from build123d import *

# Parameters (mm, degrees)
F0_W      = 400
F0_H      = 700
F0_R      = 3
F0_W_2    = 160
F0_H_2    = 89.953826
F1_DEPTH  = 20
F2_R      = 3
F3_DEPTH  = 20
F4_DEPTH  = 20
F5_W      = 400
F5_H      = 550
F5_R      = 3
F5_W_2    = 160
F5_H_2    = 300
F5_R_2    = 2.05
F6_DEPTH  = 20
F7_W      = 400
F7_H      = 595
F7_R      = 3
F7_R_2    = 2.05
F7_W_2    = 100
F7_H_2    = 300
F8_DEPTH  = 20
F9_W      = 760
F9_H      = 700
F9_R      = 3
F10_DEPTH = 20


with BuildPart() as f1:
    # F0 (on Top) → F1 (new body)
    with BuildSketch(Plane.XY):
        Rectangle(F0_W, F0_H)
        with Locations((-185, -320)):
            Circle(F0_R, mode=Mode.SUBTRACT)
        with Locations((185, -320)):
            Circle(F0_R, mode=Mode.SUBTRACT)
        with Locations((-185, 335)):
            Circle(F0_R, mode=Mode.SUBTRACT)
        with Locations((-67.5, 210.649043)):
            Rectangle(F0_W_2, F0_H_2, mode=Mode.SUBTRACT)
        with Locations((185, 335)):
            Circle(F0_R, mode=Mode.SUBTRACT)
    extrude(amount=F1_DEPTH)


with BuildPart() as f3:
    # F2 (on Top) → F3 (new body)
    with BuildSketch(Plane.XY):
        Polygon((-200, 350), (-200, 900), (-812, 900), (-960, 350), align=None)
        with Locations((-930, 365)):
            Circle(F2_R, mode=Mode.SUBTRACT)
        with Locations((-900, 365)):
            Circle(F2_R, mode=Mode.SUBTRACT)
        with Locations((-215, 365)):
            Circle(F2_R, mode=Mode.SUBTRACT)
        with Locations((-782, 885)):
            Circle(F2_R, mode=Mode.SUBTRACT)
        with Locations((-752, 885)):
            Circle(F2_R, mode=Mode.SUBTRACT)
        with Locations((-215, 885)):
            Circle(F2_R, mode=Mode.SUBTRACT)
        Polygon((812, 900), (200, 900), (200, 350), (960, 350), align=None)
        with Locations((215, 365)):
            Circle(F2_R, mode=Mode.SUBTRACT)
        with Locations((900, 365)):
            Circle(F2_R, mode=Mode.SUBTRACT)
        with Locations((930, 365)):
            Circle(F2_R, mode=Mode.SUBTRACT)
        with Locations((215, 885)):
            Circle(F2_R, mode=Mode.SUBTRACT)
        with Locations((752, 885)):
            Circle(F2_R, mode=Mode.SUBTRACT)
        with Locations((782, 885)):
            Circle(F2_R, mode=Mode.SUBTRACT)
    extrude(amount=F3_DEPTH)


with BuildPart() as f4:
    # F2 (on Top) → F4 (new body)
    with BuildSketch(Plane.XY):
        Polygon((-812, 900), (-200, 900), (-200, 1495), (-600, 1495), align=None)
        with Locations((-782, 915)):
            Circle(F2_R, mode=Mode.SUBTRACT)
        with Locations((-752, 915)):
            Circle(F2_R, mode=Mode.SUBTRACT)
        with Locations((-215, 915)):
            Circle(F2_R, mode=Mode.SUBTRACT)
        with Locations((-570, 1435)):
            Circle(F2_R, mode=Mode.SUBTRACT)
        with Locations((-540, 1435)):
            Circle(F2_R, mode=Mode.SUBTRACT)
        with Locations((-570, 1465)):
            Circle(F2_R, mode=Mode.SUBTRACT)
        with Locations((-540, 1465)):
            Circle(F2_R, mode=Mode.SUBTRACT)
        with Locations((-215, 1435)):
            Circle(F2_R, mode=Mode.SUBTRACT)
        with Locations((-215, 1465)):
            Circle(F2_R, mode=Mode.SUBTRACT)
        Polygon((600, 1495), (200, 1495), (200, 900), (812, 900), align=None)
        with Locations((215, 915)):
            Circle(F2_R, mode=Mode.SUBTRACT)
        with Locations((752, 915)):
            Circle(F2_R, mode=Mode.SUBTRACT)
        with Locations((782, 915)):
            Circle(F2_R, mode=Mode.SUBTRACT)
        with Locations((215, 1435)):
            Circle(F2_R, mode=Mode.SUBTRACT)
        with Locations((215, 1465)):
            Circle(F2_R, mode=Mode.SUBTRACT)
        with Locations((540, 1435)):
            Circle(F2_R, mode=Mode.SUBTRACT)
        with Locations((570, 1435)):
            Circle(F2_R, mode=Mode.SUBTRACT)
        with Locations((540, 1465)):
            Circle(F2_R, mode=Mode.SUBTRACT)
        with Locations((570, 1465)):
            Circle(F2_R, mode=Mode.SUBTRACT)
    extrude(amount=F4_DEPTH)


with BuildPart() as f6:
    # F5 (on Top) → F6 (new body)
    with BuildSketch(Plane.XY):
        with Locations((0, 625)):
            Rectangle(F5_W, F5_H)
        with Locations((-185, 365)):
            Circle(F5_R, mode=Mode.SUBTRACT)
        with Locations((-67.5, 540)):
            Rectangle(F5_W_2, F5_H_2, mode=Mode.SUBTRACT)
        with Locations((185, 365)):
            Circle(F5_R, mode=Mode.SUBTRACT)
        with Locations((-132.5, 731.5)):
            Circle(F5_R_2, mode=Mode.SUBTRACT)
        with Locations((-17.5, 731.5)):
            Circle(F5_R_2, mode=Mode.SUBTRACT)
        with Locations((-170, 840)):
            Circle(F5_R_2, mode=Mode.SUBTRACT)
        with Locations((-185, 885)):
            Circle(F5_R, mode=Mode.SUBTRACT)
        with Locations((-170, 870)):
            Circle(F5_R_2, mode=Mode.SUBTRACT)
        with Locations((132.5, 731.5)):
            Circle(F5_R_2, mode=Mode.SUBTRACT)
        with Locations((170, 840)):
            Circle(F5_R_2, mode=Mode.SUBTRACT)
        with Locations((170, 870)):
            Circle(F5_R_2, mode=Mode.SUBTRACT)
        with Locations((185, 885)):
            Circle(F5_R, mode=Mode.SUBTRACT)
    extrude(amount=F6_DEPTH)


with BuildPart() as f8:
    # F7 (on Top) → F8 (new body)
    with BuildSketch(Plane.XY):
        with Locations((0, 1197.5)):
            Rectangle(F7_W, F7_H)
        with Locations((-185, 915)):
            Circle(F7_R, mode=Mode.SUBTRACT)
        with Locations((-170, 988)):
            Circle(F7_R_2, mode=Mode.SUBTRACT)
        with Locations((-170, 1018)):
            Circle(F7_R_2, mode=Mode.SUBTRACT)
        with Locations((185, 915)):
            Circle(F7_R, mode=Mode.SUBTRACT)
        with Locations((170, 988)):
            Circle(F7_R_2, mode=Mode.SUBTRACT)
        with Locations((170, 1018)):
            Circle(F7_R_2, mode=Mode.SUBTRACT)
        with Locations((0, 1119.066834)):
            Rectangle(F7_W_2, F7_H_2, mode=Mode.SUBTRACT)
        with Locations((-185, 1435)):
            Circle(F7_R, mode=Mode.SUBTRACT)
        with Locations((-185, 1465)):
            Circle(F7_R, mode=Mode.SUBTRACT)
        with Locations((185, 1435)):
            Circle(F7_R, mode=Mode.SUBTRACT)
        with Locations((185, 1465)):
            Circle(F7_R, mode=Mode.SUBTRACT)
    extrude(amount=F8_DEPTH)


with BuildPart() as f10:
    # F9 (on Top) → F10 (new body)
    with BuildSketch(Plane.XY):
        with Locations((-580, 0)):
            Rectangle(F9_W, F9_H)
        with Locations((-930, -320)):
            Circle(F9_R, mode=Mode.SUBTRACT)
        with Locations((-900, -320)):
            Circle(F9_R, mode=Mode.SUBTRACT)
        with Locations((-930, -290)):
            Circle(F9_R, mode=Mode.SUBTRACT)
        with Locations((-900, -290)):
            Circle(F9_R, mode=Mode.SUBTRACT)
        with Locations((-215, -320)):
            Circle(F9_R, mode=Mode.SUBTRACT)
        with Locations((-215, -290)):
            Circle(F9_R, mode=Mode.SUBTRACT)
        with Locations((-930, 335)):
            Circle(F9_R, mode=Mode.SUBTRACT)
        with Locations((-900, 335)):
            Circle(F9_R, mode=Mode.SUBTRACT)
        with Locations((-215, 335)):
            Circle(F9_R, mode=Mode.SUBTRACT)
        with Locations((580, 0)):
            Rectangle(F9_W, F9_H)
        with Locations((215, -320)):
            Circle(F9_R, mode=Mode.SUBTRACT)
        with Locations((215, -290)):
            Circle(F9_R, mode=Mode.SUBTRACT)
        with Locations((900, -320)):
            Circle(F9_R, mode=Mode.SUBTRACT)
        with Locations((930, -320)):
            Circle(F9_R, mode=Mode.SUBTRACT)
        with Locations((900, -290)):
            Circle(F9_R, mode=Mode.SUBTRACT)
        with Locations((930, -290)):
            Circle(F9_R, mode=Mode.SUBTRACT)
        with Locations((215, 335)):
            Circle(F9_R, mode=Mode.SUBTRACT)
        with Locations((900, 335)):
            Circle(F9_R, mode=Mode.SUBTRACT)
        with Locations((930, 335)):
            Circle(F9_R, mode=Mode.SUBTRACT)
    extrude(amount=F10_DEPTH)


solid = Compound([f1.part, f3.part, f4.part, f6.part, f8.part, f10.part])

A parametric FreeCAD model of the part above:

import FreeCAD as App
import Part
import Sketcher

V = App.Vector
Q = App.Units.Quantity

doc = App.newDocument("Part")
body = doc.addObject("PartDesign::Body", "Body")

sketch1 = body.newObject("Sketcher::SketchObject", "Sketch")
sketch1.AttachmentSupport = (doc.getObject("XY_Plane"), [""])
sketch1.MapMode = "FlatFace"
sketch1.addGeometry(Part.LineSegment(V(-200, 350, 0), V(-200, -350, 0)), False)
sketch1.addGeometry(Part.LineSegment(V(-200, -350, 0), V(200, -350, 0)), False)
sketch1.addGeometry(Part.LineSegment(V(200, -350, 0), V(200, 350, 0)), False)
sketch1.addGeometry(Part.LineSegment(V(200, 350, 0), V(-200, 350, 0)), False)
sketch1.addGeometry(Part.Circle(V(-185, -320, 0), V(0, 0, 1), 3), False)
sketch1.addGeometry(Part.Circle(V(185, -320, 0), V(0, 0, 1), 3), False)
sketch1.addGeometry(Part.Circle(V(-185, 335, 0), V(0, 0, 1), 3), False)
sketch1.addGeometry(Part.LineSegment(V(12.5, 165.7, 0), V(-147.5, 165.7, 0)), False)
sketch1.addGeometry(Part.LineSegment(V(-147.5, 165.7, 0), V(-147.5, 255.6, 0)), False)
sketch1.addGeometry(Part.LineSegment(V(-147.5, 255.6, 0), V(12.5, 255.6, 0)), False)
sketch1.addGeometry(Part.LineSegment(V(12.5, 255.6, 0), V(12.5, 165.7, 0)), False)
sketch1.addGeometry(Part.Circle(V(185, 335, 0), V(0, 0, 1), 3), False)
sketch1.addConstraint(Sketcher.Constraint("Coincident", 0, 2, 1, 1))
sketch1.addConstraint(Sketcher.Constraint("Coincident", 1, 2, 2, 1))
sketch1.addConstraint(Sketcher.Constraint("Coincident", 2, 2, 3, 1))
sketch1.addConstraint(Sketcher.Constraint("Coincident", 3, 2, 0, 1))
sketch1.addConstraint(Sketcher.Constraint("Coincident", 7, 2, 8, 1))
sketch1.addConstraint(Sketcher.Constraint("Coincident", 8, 2, 9, 1))
sketch1.addConstraint(Sketcher.Constraint("Coincident", 9, 2, 10, 1))
sketch1.addConstraint(Sketcher.Constraint("Coincident", 10, 2, 7, 1))
sketch1.addConstraint(Sketcher.Constraint("Vertical", 0))
sketch1.addConstraint(Sketcher.Constraint("Horizontal", 1))
sketch1.addConstraint(Sketcher.Constraint("Vertical", 2))
sketch1.addConstraint(Sketcher.Constraint("Horizontal", 3))
sketch1.addConstraint(Sketcher.Constraint("Horizontal", 7))
sketch1.addConstraint(Sketcher.Constraint("Vertical", 8))
sketch1.addConstraint(Sketcher.Constraint("Horizontal", 9))
sketch1.addConstraint(Sketcher.Constraint("Vertical", 10))
sketch1.addConstraint(Sketcher.Constraint("Equal", 4, 5))
sketch1.addConstraint(Sketcher.Constraint("Equal", 5, 6))
sketch1.addConstraint(Sketcher.Constraint("Equal", 6, 11))
sketch1.addConstraint(Sketcher.Constraint("Symmetric", 0, 2, 2, 2, -1, 1))
sketch1.addConstraint(Sketcher.Constraint("Symmetric", 4, 3, 5, 3, -2))
sketch1.addConstraint(Sketcher.Constraint("Symmetric", 6, 3, 11, 3, -2))
sketch1.addConstraint(Sketcher.Constraint("Vertical", 4, 3, 6, 3))
sketch1.addConstraint(Sketcher.Constraint("Diameter", 4, Q("6 mm")))
sketch1.addConstraint(Sketcher.Constraint("DistanceX", 1, 1, 1, 2, Q("400 mm")))
sketch1.addConstraint(Sketcher.Constraint("DistanceX", 7, 2, 7, 1, Q("160 mm")))
sketch1.addConstraint(Sketcher.Constraint("DistanceY", 0, 2, 0, 1, Q("700 mm")))
sketch1.addConstraint(Sketcher.Constraint("DistanceX", 4, 3, -1, 1, Q("185 mm")))
sketch1.addConstraint(Sketcher.Constraint("DistanceY", 4, 3, -1, 1, Q("320 mm")))
sketch1.addConstraint(Sketcher.Constraint("DistanceY", -1, 1, 6, 3, Q("335 mm")))
sketch1.addConstraint(Sketcher.Constraint("DistanceX", 7, 2, -1, 1, Q("147.5 mm")))
sketch1.addConstraint(Sketcher.Constraint("DistanceY", 8, 1, 8, 2, Q("89.953826 mm")))
sketch1.addConstraint(Sketcher.Constraint("DistanceY", -1, 1, 7, 2, Q("165.67213 mm")))
pad1 = body.newObject("PartDesign::Pad", "Pad")
pad1.Profile = sketch1
pad1.Length = 20
body2 = doc.addObject("PartDesign::Body", "Body001")
body2.AllowCompound = True

sketch2 = body2.newObject("Sketcher::SketchObject", "Sketch001")
sketch2.AttachmentSupport = (doc.getObject("XY_Plane001"), [""])
sketch2.MapMode = "FlatFace"
sketch2.addGeometry(Part.LineSegment(V(-200, 350, 0), V(-200, 900, 0)), False)
sketch2.addGeometry(Part.LineSegment(V(-200, 900, 0), V(-812, 900, 0)), False)
sketch2.addGeometry(Part.LineSegment(V(-812, 900, 0), V(-960, 350, 0)), False)
sketch2.addGeometry(Part.LineSegment(V(-960, 350, 0), V(-200, 350, 0)), False)
sketch2.addGeometry(Part.Circle(V(-930, 365, 0), V(0, 0, 1), 3), False)
sketch2.addGeometry(Part.Circle(V(-900, 365, 0), V(0, 0, 1), 3), False)
sketch2.addGeometry(Part.Circle(V(-215, 365, 0), V(0, 0, 1), 3), False)
sketch2.addGeometry(Part.Circle(V(-782, 885, 0), V(0, 0, 1), 3), False)
sketch2.addGeometry(Part.Circle(V(-752, 885, 0), V(0, 0, 1), 3), False)
sketch2.addGeometry(Part.Circle(V(-215, 885, 0), V(0, 0, 1), 3), False)
sketch2.addGeometry(Part.LineSegment(V(812, 900, 0), V(200, 900, 0)), False)
sketch2.addGeometry(Part.LineSegment(V(200, 900, 0), V(200, 350, 0)), False)
sketch2.addGeometry(Part.LineSegment(V(200, 350, 0), V(960, 350, 0)), False)
sketch2.addGeometry(Part.LineSegment(V(960, 350, 0), V(812, 900, 0)), False)
sketch2.addGeometry(Part.Circle(V(215, 365, 0), V(0, 0, 1), 3), False)
sketch2.addGeometry(Part.Circle(V(900, 365, 0), V(0, 0, 1), 3), False)
sketch2.addGeometry(Part.Circle(V(930, 365, 0), V(0, 0, 1), 3), False)
sketch2.addGeometry(Part.Circle(V(215, 885, 0), V(0, 0, 1), 3), False)
sketch2.addGeometry(Part.Circle(V(752, 885, 0), V(0, 0, 1), 3), False)
sketch2.addGeometry(Part.Circle(V(782, 885, 0), V(0, 0, 1), 3), False)
sketch2.addConstraint(Sketcher.Constraint("Coincident", 0, 2, 1, 1))
sketch2.addConstraint(Sketcher.Constraint("Coincident", 1, 2, 2, 1))
sketch2.addConstraint(Sketcher.Constraint("Coincident", 2, 2, 3, 1))
sketch2.addConstraint(Sketcher.Constraint("Coincident", 3, 2, 0, 1))
sketch2.addConstraint(Sketcher.Constraint("Coincident", 10, 2, 11, 1))
sketch2.addConstraint(Sketcher.Constraint("Coincident", 11, 2, 12, 1))
sketch2.addConstraint(Sketcher.Constraint("Coincident", 12, 2, 13, 1))
sketch2.addConstraint(Sketcher.Constraint("Coincident", 13, 2, 10, 1))
sketch2.addConstraint(Sketcher.Constraint("Vertical", 0))
sketch2.addConstraint(Sketcher.Constraint("Horizontal", 1))
sketch2.addConstraint(Sketcher.Constraint("Horizontal", 3))
sketch2.addConstraint(Sketcher.Constraint("Horizontal", 10))
sketch2.addConstraint(Sketcher.Constraint("Vertical", 11))
sketch2.addConstraint(Sketcher.Constraint("Horizontal", 12))
sketch2.addConstraint(Sketcher.Constraint("Equal", 4, 5))
sketch2.addConstraint(Sketcher.Constraint("Equal", 5, 6))
sketch2.addConstraint(Sketcher.Constraint("Equal", 6, 7))
sketch2.addConstraint(Sketcher.Constraint("Equal", 7, 8))
sketch2.addConstraint(Sketcher.Constraint("Equal", 8, 9))
sketch2.addConstraint(Sketcher.Constraint("Equal", 9, 14))
sketch2.addConstraint(Sketcher.Constraint("Equal", 14, 15))
sketch2.addConstraint(Sketcher.Constraint("Equal", 15, 16))
sketch2.addConstraint(Sketcher.Constraint("Equal", 16, 17))
sketch2.addConstraint(Sketcher.Constraint("Equal", 17, 18))
sketch2.addConstraint(Sketcher.Constraint("Equal", 18, 19))
sketch2.addConstraint(Sketcher.Constraint("Symmetric", 6, 3, 14, 3, -2))
sketch2.addConstraint(Sketcher.Constraint("Symmetric", 5, 3, 15, 3, -2))
sketch2.addConstraint(Sketcher.Constraint("Symmetric", 4, 3, 16, 3, -2))
sketch2.addConstraint(Sketcher.Constraint("Symmetric", 9, 3, 17, 3, -2))
sketch2.addConstraint(Sketcher.Constraint("Symmetric", 8, 3, 18, 3, -2))
sketch2.addConstraint(Sketcher.Constraint("Symmetric", 7, 3, 19, 3, -2))
sketch2.addConstraint(Sketcher.Constraint("Symmetric", 0, 2, 10, 2, -2))
sketch2.addConstraint(Sketcher.Constraint("Symmetric", 2, 2, 12, 2, -2))
sketch2.addConstraint(Sketcher.Constraint("Horizontal", 4, 3, 5, 3))
sketch2.addConstraint(Sketcher.Constraint("Horizontal", 5, 3, 6, 3))
sketch2.addConstraint(Sketcher.Constraint("Horizontal", 7, 3, 8, 3))
sketch2.addConstraint(Sketcher.Constraint("Horizontal", 8, 3, 9, 3))
sketch2.addConstraint(Sketcher.Constraint("Vertical", 6, 3, 9, 3))
sketch2.addConstraint(Sketcher.Constraint("Equal", 1, 10))
sketch2.addConstraint(Sketcher.Constraint("Diameter", 4, Q("6 mm")))
sketch2.addConstraint(Sketcher.Constraint("DistanceX", 1, 2, 1, 1, Q("612 mm")))
sketch2.addConstraint(Sketcher.Constraint("DistanceX", 3, 1, 3, 2, Q("760 mm")))
sketch2.addConstraint(Sketcher.Constraint("DistanceY", 0, 1, 0, 2, Q("550 mm")))
sketch2.addConstraint(Sketcher.Constraint("DistanceX", 4, 3, -1, 1, Q("930 mm")))
sketch2.addConstraint(Sketcher.Constraint("DistanceY", -1, 1, 4, 3, Q("365 mm")))
sketch2.addConstraint(Sketcher.Constraint("DistanceX", 5, 3, -1, 1, Q("900 mm")))
sketch2.addConstraint(Sketcher.Constraint("DistanceX", 6, 3, -1, 1, Q("215 mm")))
sketch2.addConstraint(Sketcher.Constraint("DistanceX", 7, 3, -1, 1, Q("782 mm")))
sketch2.addConstraint(Sketcher.Constraint("DistanceY", -1, 1, 7, 3, Q("885 mm")))
sketch2.addConstraint(Sketcher.Constraint("DistanceX", 8, 3, -1, 1, Q("752 mm")))
sketch2.addConstraint(Sketcher.Constraint("DistanceX", 0, 2, -1, 1, Q("200 mm")))
sketch2.addConstraint(Sketcher.Constraint("DistanceY", -1, 1, 0, 2, Q("900 mm")))
pad2 = body2.newObject("PartDesign::Pad", "Pad001")
pad2.Profile = sketch2
pad2.Length = 20
body3 = doc.addObject("PartDesign::Body", "Body002")
body3.AllowCompound = True

sketch3 = body3.newObject("Sketcher::SketchObject", "Sketch002")
sketch3.AttachmentSupport = (doc.getObject("XY_Plane002"), [""])
sketch3.MapMode = "FlatFace"
sketch3.addGeometry(Part.LineSegment(V(-812, 900, 0), V(-200, 900, 0)), False)
sketch3.addGeometry(Part.LineSegment(V(-200, 900, 0), V(-200, 1495, 0)), False)
sketch3.addGeometry(Part.LineSegment(V(-200, 1495, 0), V(-600, 1495, 0)), False)
sketch3.addGeometry(Part.LineSegment(V(-600, 1495, 0), V(-812, 900, 0)), False)
sketch3.addGeometry(Part.Circle(V(-782, 915, 0), V(0, 0, 1), 3), False)
sketch3.addGeometry(Part.Circle(V(-752, 915, 0), V(0, 0, 1), 3), False)
sketch3.addGeometry(Part.Circle(V(-215, 915, 0), V(0, 0, 1), 3), False)
sketch3.addGeometry(Part.Circle(V(-570, 1435, 0), V(0, 0, 1), 3), False)
sketch3.addGeometry(Part.Circle(V(-540, 1435, 0), V(0, 0, 1), 3), False)
sketch3.addGeometry(Part.Circle(V(-570, 1465, 0), V(0, 0, 1), 3), False)
sketch3.addGeometry(Part.Circle(V(-540, 1465, 0), V(0, 0, 1), 3), False)
sketch3.addGeometry(Part.Circle(V(-215, 1435, 0), V(0, 0, 1), 3), False)
sketch3.addGeometry(Part.Circle(V(-215, 1465, 0), V(0, 0, 1), 3), False)
sketch3.addGeometry(Part.LineSegment(V(600, 1495, 0), V(200, 1495, 0)), False)
sketch3.addGeometry(Part.LineSegment(V(200, 1495, 0), V(200, 900, 0)), False)
sketch3.addGeometry(Part.LineSegment(V(200, 900, 0), V(812, 900, 0)), False)
sketch3.addGeometry(Part.LineSegment(V(812, 900, 0), V(600, 1495, 0)), False)
sketch3.addGeometry(Part.Circle(V(215, 915, 0), V(0, 0, 1), 3), False)
sketch3.addGeometry(Part.Circle(V(752, 915, 0), V(0, 0, 1), 3), False)
sketch3.addGeometry(Part.Circle(V(782, 915, 0), V(0, 0, 1), 3), False)
sketch3.addGeometry(Part.Circle(V(215, 1435, 0), V(0, 0, 1), 3), False)
sketch3.addGeometry(Part.Circle(V(215, 1465, 0), V(0, 0, 1), 3), False)
sketch3.addGeometry(Part.Circle(V(540, 1435, 0), V(0, 0, 1), 3), False)
sketch3.addGeometry(Part.Circle(V(570, 1435, 0), V(0, 0, 1), 3), False)
sketch3.addGeometry(Part.Circle(V(540, 1465, 0), V(0, 0, 1), 3), False)
sketch3.addGeometry(Part.Circle(V(570, 1465, 0), V(0, 0, 1), 3), False)
sketch3.addConstraint(Sketcher.Constraint("Coincident", 0, 2, 1, 1))
sketch3.addConstraint(Sketcher.Constraint("Coincident", 1, 2, 2, 1))
sketch3.addConstraint(Sketcher.Constraint("Coincident", 2, 2, 3, 1))
sketch3.addConstraint(Sketcher.Constraint("Coincident", 3, 2, 0, 1))
sketch3.addConstraint(Sketcher.Constraint("Coincident", 13, 2, 14, 1))
sketch3.addConstraint(Sketcher.Constraint("Coincident", 14, 2, 15, 1))
sketch3.addConstraint(Sketcher.Constraint("Coincident", 15, 2, 16, 1))
sketch3.addConstraint(Sketcher.Constraint("Coincident", 16, 2, 13, 1))
sketch3.addConstraint(Sketcher.Constraint("Horizontal", 0))
sketch3.addConstraint(Sketcher.Constraint("Vertical", 1))
sketch3.addConstraint(Sketcher.Constraint("Horizontal", 2))
sketch3.addConstraint(Sketcher.Constraint("Horizontal", 13))
sketch3.addConstraint(Sketcher.Constraint("Vertical", 14))
sketch3.addConstraint(Sketcher.Constraint("Horizontal", 15))
sketch3.addConstraint(Sketcher.Constraint("Equal", 4, 5))
sketch3.addConstraint(Sketcher.Constraint("Equal", 5, 6))
sketch3.addConstraint(Sketcher.Constraint("Equal", 6, 7))
sketch3.addConstraint(Sketcher.Constraint("Equal", 7, 8))
sketch3.addConstraint(Sketcher.Constraint("Equal", 8, 9))
sketch3.addConstraint(Sketcher.Constraint("Equal", 9, 10))
sketch3.addConstraint(Sketcher.Constraint("Equal", 10, 11))
sketch3.addConstraint(Sketcher.Constraint("Equal", 11, 12))
sketch3.addConstraint(Sketcher.Constraint("Equal", 12, 17))
sketch3.addConstraint(Sketcher.Constraint("Equal", 17, 18))
sketch3.addConstraint(Sketcher.Constraint("Equal", 18, 19))
sketch3.addConstraint(Sketcher.Constraint("Equal", 19, 20))
sketch3.addConstraint(Sketcher.Constraint("Equal", 20, 21))
sketch3.addConstraint(Sketcher.Constraint("Equal", 21, 22))
sketch3.addConstraint(Sketcher.Constraint("Equal", 22, 23))
sketch3.addConstraint(Sketcher.Constraint("Equal", 23, 24))
sketch3.addConstraint(Sketcher.Constraint("Equal", 24, 25))
sketch3.addConstraint(Sketcher.Constraint("Symmetric", 6, 3, 17, 3, -2))
sketch3.addConstraint(Sketcher.Constraint("Symmetric", 5, 3, 18, 3, -2))
sketch3.addConstraint(Sketcher.Constraint("Symmetric", 4, 3, 19, 3, -2))
sketch3.addConstraint(Sketcher.Constraint("Symmetric", 11, 3, 20, 3, -2))
sketch3.addConstraint(Sketcher.Constraint("Symmetric", 12, 3, 21, 3, -2))
sketch3.addConstraint(Sketcher.Constraint("Symmetric", 8, 3, 22, 3, -2))
sketch3.addConstraint(Sketcher.Constraint("Symmetric", 7, 3, 23, 3, -2))
sketch3.addConstraint(Sketcher.Constraint("Symmetric", 10, 3, 24, 3, -2))
sketch3.addConstraint(Sketcher.Constraint("Symmetric", 9, 3, 25, 3, -2))
sketch3.addConstraint(Sketcher.Constraint("Symmetric", 1, 2, 13, 2, -2))
sketch3.addConstraint(Sketcher.Constraint("Symmetric", 3, 2, 15, 2, -2))
sketch3.addConstraint(Sketcher.Constraint("Horizontal", 4, 3, 5, 3))
sketch3.addConstraint(Sketcher.Constraint("Horizontal", 5, 3, 6, 3))
sketch3.addConstraint(Sketcher.Constraint("Horizontal", 7, 3, 8, 3))
sketch3.addConstraint(Sketcher.Constraint("Horizontal", 9, 3, 10, 3))
sketch3.addConstraint(Sketcher.Constraint("Horizontal", 8, 3, 11, 3))
sketch3.addConstraint(Sketcher.Constraint("Horizontal", 10, 3, 12, 3))
sketch3.addConstraint(Sketcher.Constraint("Vertical", 7, 3, 9, 3))
sketch3.addConstraint(Sketcher.Constraint("Vertical", 8, 3, 10, 3))
sketch3.addConstraint(Sketcher.Constraint("Vertical", 6, 3, 11, 3))
sketch3.addConstraint(Sketcher.Constraint("Vertical", 11, 3, 12, 3))
sketch3.addConstraint(Sketcher.Constraint("Equal", 2, 13))
sketch3.addConstraint(Sketcher.Constraint("Diameter", 4, Q("6 mm")))
sketch3.addConstraint(Sketcher.Constraint("DistanceX", 0, 1, 0, 2, Q("612 mm")))
sketch3.addConstraint(Sketcher.Constraint("DistanceX", 2, 2, 2, 1, Q("400 mm")))
sketch3.addConstraint(Sketcher.Constraint("DistanceY", 1, 1, 1, 2, Q("595 mm")))
sketch3.addConstraint(Sketcher.Constraint("DistanceX", 4, 3, -1, 1, Q("782 mm")))
sketch3.addConstraint(Sketcher.Constraint("DistanceY", -1, 1, 4, 3, Q("915 mm")))
sketch3.addConstraint(Sketcher.Constraint("DistanceX", 5, 3, -1, 1, Q("752 mm")))
sketch3.addConstraint(Sketcher.Constraint("DistanceX", 6, 3, -1, 1, Q("215 mm")))
sketch3.addConstraint(Sketcher.Constraint("DistanceX", 7, 3, -1, 1, Q("570 mm")))
sketch3.addConstraint(Sketcher.Constraint("DistanceY", -1, 1, 7, 3, Q("1435 mm")))
sketch3.addConstraint(Sketcher.Constraint("DistanceX", 8, 3, -1, 1, Q("540 mm")))
sketch3.addConstraint(Sketcher.Constraint("DistanceY", -1, 1, 9, 3, Q("1465 mm")))
sketch3.addConstraint(Sketcher.Constraint("DistanceX", 0, 2, -1, 1, Q("200 mm")))
sketch3.addConstraint(Sketcher.Constraint("DistanceY", -1, 1, 0, 2, Q("900 mm")))
pad3 = body3.newObject("PartDesign::Pad", "Pad002")
pad3.Profile = sketch3
pad3.Length = 20
body4 = doc.addObject("PartDesign::Body", "Body003")

sketch4 = body4.newObject("Sketcher::SketchObject", "Sketch003")
sketch4.AttachmentSupport = (doc.getObject("XY_Plane003"), [""])
sketch4.MapMode = "FlatFace"
sketch4.addGeometry(Part.LineSegment(V(-200, 900, 0), V(-200, 350, 0)), False)
sketch4.addGeometry(Part.LineSegment(V(-200, 350, 0), V(200, 350, 0)), False)
sketch4.addGeometry(Part.LineSegment(V(200, 350, 0), V(200, 900, 0)), False)
sketch4.addGeometry(Part.LineSegment(V(200, 900, 0), V(-200, 900, 0)), False)
sketch4.addGeometry(Part.Circle(V(-185, 365, 0), V(0, 0, 1), 3), False)
sketch4.addGeometry(Part.LineSegment(V(12.5, 390, 0), V(-147.5, 390, 0)), False)
sketch4.addGeometry(Part.LineSegment(V(-147.5, 390, 0), V(-147.5, 690, 0)), False)
sketch4.addGeometry(Part.LineSegment(V(-147.5, 690, 0), V(12.5, 690, 0)), False)
sketch4.addGeometry(Part.LineSegment(V(12.5, 690, 0), V(12.5, 390, 0)), False)
sketch4.addGeometry(Part.Circle(V(185, 365, 0), V(0, 0, 1), 3), False)
sketch4.addGeometry(Part.Circle(V(-132.5, 731.5, 0), V(0, 0, 1), 2), False)
sketch4.addGeometry(Part.Circle(V(-17.5, 731.5, 0), V(0, 0, 1), 2), False)
sketch4.addGeometry(Part.Circle(V(-170, 840, 0), V(0, 0, 1), 2), False)
sketch4.addGeometry(Part.Circle(V(-170, 870, 0), V(0, 0, 1), 2), False)
sketch4.addGeometry(Part.Circle(V(-185, 885, 0), V(0, 0, 1), 3), False)
sketch4.addGeometry(Part.Circle(V(132.5, 731.5, 0), V(0, 0, 1), 2), False)
sketch4.addGeometry(Part.Circle(V(170, 840, 0), V(0, 0, 1), 2), False)
sketch4.addGeometry(Part.Circle(V(170, 870, 0), V(0, 0, 1), 2), False)
sketch4.addGeometry(Part.Circle(V(185, 885, 0), V(0, 0, 1), 3), False)
sketch4.addConstraint(Sketcher.Constraint("Coincident", 0, 2, 1, 1))
sketch4.addConstraint(Sketcher.Constraint("Coincident", 1, 2, 2, 1))
sketch4.addConstraint(Sketcher.Constraint("Coincident", 2, 2, 3, 1))
sketch4.addConstraint(Sketcher.Constraint("Coincident", 3, 2, 0, 1))
sketch4.addConstraint(Sketcher.Constraint("Coincident", 5, 2, 6, 1))
sketch4.addConstraint(Sketcher.Constraint("Coincident", 6, 2, 7, 1))
sketch4.addConstraint(Sketcher.Constraint("Coincident", 7, 2, 8, 1))
sketch4.addConstraint(Sketcher.Constraint("Coincident", 8, 2, 5, 1))
sketch4.addConstraint(Sketcher.Constraint("Vertical", 0))
sketch4.addConstraint(Sketcher.Constraint("Horizontal", 1))
sketch4.addConstraint(Sketcher.Constraint("Vertical", 2))
sketch4.addConstraint(Sketcher.Constraint("Horizontal", 3))
sketch4.addConstraint(Sketcher.Constraint("Horizontal", 5))
sketch4.addConstraint(Sketcher.Constraint("Vertical", 6))
sketch4.addConstraint(Sketcher.Constraint("Horizontal", 7))
sketch4.addConstraint(Sketcher.Constraint("Vertical", 8))
sketch4.addConstraint(Sketcher.Constraint("Equal", 4, 9))
sketch4.addConstraint(Sketcher.Constraint("Equal", 10, 11))
sketch4.addConstraint(Sketcher.Constraint("Equal", 11, 12))
sketch4.addConstraint(Sketcher.Constraint("Equal", 12, 13))
sketch4.addConstraint(Sketcher.Constraint("Equal", 9, 14))
sketch4.addConstraint(Sketcher.Constraint("Equal", 13, 15))
sketch4.addConstraint(Sketcher.Constraint("Equal", 15, 16))
sketch4.addConstraint(Sketcher.Constraint("Equal", 16, 17))
sketch4.addConstraint(Sketcher.Constraint("Equal", 14, 18))
sketch4.addConstraint(Sketcher.Constraint("Symmetric", 4, 3, 9, 3, -2))
sketch4.addConstraint(Sketcher.Constraint("Symmetric", 10, 3, 15, 3, -2))
sketch4.addConstraint(Sketcher.Constraint("Symmetric", 12, 3, 16, 3, -2))
sketch4.addConstraint(Sketcher.Constraint("Symmetric", 13, 3, 17, 3, -2))
sketch4.addConstraint(Sketcher.Constraint("Symmetric", 14, 3, 18, 3, -2))
sketch4.addConstraint(Sketcher.Constraint("Horizontal", 10, 3, 11, 3))
sketch4.addConstraint(Sketcher.Constraint("Vertical", 12, 3, 13, 3))
sketch4.addConstraint(Sketcher.Constraint("Vertical", 4, 3, 14, 3))
sketch4.addConstraint(Sketcher.Constraint("Diameter", 4, Q("6 mm")))
sketch4.addConstraint(Sketcher.Constraint("Diameter", 10, Q("4.1 mm")))
sketch4.addConstraint(Sketcher.Constraint("DistanceX", 1, 1, 1, 2, Q("400 mm")))
sketch4.addConstraint(Sketcher.Constraint("DistanceX", 5, 2, 5, 1, Q("160 mm")))
sketch4.addConstraint(Sketcher.Constraint("DistanceY", 0, 2, 0, 1, Q("550 mm")))
sketch4.addConstraint(Sketcher.Constraint("DistanceY", 6, 1, 6, 2, Q("300 mm")))
sketch4.addConstraint(Sketcher.Constraint("DistanceX", 4, 3, -1, 1, Q("185 mm")))
sketch4.addConstraint(Sketcher.Constraint("DistanceY", -1, 1, 4, 3, Q("365 mm")))
sketch4.addConstraint(Sketcher.Constraint("DistanceX", 12, 3, -1, 1, Q("170 mm")))
sketch4.addConstraint(Sketcher.Constraint("DistanceY", -1, 1, 12, 3, Q("840 mm")))
sketch4.addConstraint(Sketcher.Constraint("DistanceY", -1, 1, 13, 3, Q("870 mm")))
sketch4.addConstraint(Sketcher.Constraint("DistanceY", -1, 1, 14, 3, Q("885 mm")))
sketch4.addConstraint(Sketcher.Constraint("DistanceX", 0, 2, -1, 1, Q("200 mm")))
sketch4.addConstraint(Sketcher.Constraint("DistanceY", -1, 1, 0, 2, Q("350 mm")))
sketch4.addConstraint(Sketcher.Constraint("DistanceY", -1, 1, 5, 2, Q("390 mm")))
sketch4.addConstraint(Sketcher.Constraint("DistanceX", 10, 3, 11, 3, Q("115 mm")))
sketch4.addConstraint(Sketcher.Constraint("DistanceX", 11, 3, 15, 3, Q("150 mm")))
sketch4.addConstraint(Sketcher.Constraint("DistanceX", 5, 2, 10, 3, Q("15 mm")))
sketch4.addConstraint(Sketcher.Constraint("DistanceY", -1, 1, 10, 3, Q("731.5 mm")))
pad4 = body4.newObject("PartDesign::Pad", "Pad003")
pad4.Profile = sketch4
pad4.Length = 20
body5 = doc.addObject("PartDesign::Body", "Body004")

sketch5 = body5.newObject("Sketcher::SketchObject", "Sketch004")
sketch5.AttachmentSupport = (doc.getObject("XY_Plane004"), [""])
sketch5.MapMode = "FlatFace"
sketch5.addGeometry(Part.LineSegment(V(-200, 1495, 0), V(-200, 900, 0)), False)
sketch5.addGeometry(Part.LineSegment(V(-200, 900, 0), V(200, 900, 0)), False)
sketch5.addGeometry(Part.LineSegment(V(200, 900, 0), V(200, 1495, 0)), False)
sketch5.addGeometry(Part.LineSegment(V(200, 1495, 0), V(-200, 1495, 0)), False)
sketch5.addGeometry(Part.Circle(V(-185, 915, 0), V(0, 0, 1), 3), False)
sketch5.addGeometry(Part.Circle(V(-170, 988, 0), V(0, 0, 1), 2), False)
sketch5.addGeometry(Part.Circle(V(-170, 1018, 0), V(0, 0, 1), 2), False)
sketch5.addGeometry(Part.Circle(V(185, 915, 0), V(0, 0, 1), 3), False)
sketch5.addGeometry(Part.Circle(V(170, 988, 0), V(0, 0, 1), 2), False)
sketch5.addGeometry(Part.Circle(V(170, 1018, 0), V(0, 0, 1), 2), False)
sketch5.addGeometry(Part.LineSegment(V(50, 969.1, 0), V(-50, 969.1, 0)), False)
sketch5.addGeometry(Part.LineSegment(V(-50, 969.1, 0), V(-50, 1269.1, 0)), False)
sketch5.addGeometry(Part.LineSegment(V(-50, 1269.1, 0), V(50, 1269.1, 0)), False)
sketch5.addGeometry(Part.LineSegment(V(50, 1269.1, 0), V(50, 969.1, 0)), False)
sketch5.addGeometry(Part.Circle(V(-185, 1435, 0), V(0, 0, 1), 3), False)
sketch5.addGeometry(Part.Circle(V(-185, 1465, 0), V(0, 0, 1), 3), False)
sketch5.addGeometry(Part.Circle(V(185, 1435, 0), V(0, 0, 1), 3), False)
sketch5.addGeometry(Part.Circle(V(185, 1465, 0), V(0, 0, 1), 3), False)
sketch5.addConstraint(Sketcher.Constraint("Coincident", 0, 2, 1, 1))
sketch5.addConstraint(Sketcher.Constraint("Coincident", 1, 2, 2, 1))
sketch5.addConstraint(Sketcher.Constraint("Coincident", 2, 2, 3, 1))
sketch5.addConstraint(Sketcher.Constraint("Coincident", 3, 2, 0, 1))
sketch5.addConstraint(Sketcher.Constraint("Coincident", 10, 2, 11, 1))
sketch5.addConstraint(Sketcher.Constraint("Coincident", 11, 2, 12, 1))
sketch5.addConstraint(Sketcher.Constraint("Coincident", 12, 2, 13, 1))
sketch5.addConstraint(Sketcher.Constraint("Coincident", 13, 2, 10, 1))
sketch5.addConstraint(Sketcher.Constraint("Vertical", 0))
sketch5.addConstraint(Sketcher.Constraint("Horizontal", 1))
sketch5.addConstraint(Sketcher.Constraint("Vertical", 2))
sketch5.addConstraint(Sketcher.Constraint("Horizontal", 3))
sketch5.addConstraint(Sketcher.Constraint("Horizontal", 10))
sketch5.addConstraint(Sketcher.Constraint("Vertical", 11))
sketch5.addConstraint(Sketcher.Constraint("Horizontal", 12))
sketch5.addConstraint(Sketcher.Constraint("Vertical", 13))
sketch5.addConstraint(Sketcher.Constraint("Equal", 5, 6))
sketch5.addConstraint(Sketcher.Constraint("Equal", 4, 7))
sketch5.addConstraint(Sketcher.Constraint("Equal", 6, 8))
sketch5.addConstraint(Sketcher.Constraint("Equal", 8, 9))
sketch5.addConstraint(Sketcher.Constraint("Equal", 7, 14))
sketch5.addConstraint(Sketcher.Constraint("Equal", 14, 15))
sketch5.addConstraint(Sketcher.Constraint("Equal", 15, 16))
sketch5.addConstraint(Sketcher.Constraint("Equal", 16, 17))
sketch5.addConstraint(Sketcher.Constraint("Symmetric", 4, 3, 7, 3, -2))
sketch5.addConstraint(Sketcher.Constraint("Symmetric", 5, 3, 8, 3, -2))
sketch5.addConstraint(Sketcher.Constraint("Symmetric", 6, 3, 9, 3, -2))
sketch5.addConstraint(Sketcher.Constraint("Symmetric", 14, 3, 16, 3, -2))
sketch5.addConstraint(Sketcher.Constraint("Symmetric", 15, 3, 17, 3, -2))
sketch5.addConstraint(Sketcher.Constraint("Vertical", 5, 3, 6, 3))
sketch5.addConstraint(Sketcher.Constraint("Vertical", 4, 3, 14, 3))
sketch5.addConstraint(Sketcher.Constraint("Vertical", 14, 3, 15, 3))
sketch5.addConstraint(Sketcher.Constraint("Diameter", 4, Q("6 mm")))
sketch5.addConstraint(Sketcher.Constraint("Diameter", 5, Q("4.1 mm")))
sketch5.addConstraint(Sketcher.Constraint("DistanceX", 1, 1, 1, 2, Q("400 mm")))
sketch5.addConstraint(Sketcher.Constraint("DistanceX", 10, 2, 10, 1, Q("100 mm")))
sketch5.addConstraint(Sketcher.Constraint("DistanceY", 0, 2, 0, 1, Q("595 mm")))
sketch5.addConstraint(Sketcher.Constraint("DistanceY", 11, 1, 11, 2, Q("300 mm")))
sketch5.addConstraint(Sketcher.Constraint("DistanceX", 4, 3, -1, 1, Q("185 mm")))
sketch5.addConstraint(Sketcher.Constraint("DistanceY", -1, 1, 4, 3, Q("915 mm")))
sketch5.addConstraint(Sketcher.Constraint("DistanceX", 5, 3, -1, 1, Q("170 mm")))
sketch5.addConstraint(Sketcher.Constraint("DistanceY", -1, 1, 5, 3, Q("988 mm")))
sketch5.addConstraint(Sketcher.Constraint("DistanceY", -1, 1, 6, 3, Q("1018 mm")))
sketch5.addConstraint(Sketcher.Constraint("DistanceY", -1, 1, 14, 3, Q("1435 mm")))
sketch5.addConstraint(Sketcher.Constraint("DistanceY", -1, 1, 15, 3, Q("1465 mm")))
sketch5.addConstraint(Sketcher.Constraint("DistanceX", 0, 2, -1, 1, Q("200 mm")))
sketch5.addConstraint(Sketcher.Constraint("DistanceY", -1, 1, 0, 2, Q("900 mm")))
sketch5.addConstraint(Sketcher.Constraint("DistanceX", 10, 2, -1, 1, Q("50 mm")))
sketch5.addConstraint(Sketcher.Constraint("DistanceY", -1, 1, 10, 2, Q("969.066834 mm")))
pad5 = body5.newObject("PartDesign::Pad", "Pad004")
pad5.Profile = sketch5
pad5.Length = 20
body6 = doc.addObject("PartDesign::Body", "Body005")
body6.AllowCompound = True

sketch6 = body6.newObject("Sketcher::SketchObject", "Sketch005")
sketch6.AttachmentSupport = (doc.getObject("XY_Plane005"), [""])
sketch6.MapMode = "FlatFace"
sketch6.addGeometry(Part.LineSegment(V(-960, 350, 0), V(-960, -350, 0)), False)
sketch6.addGeometry(Part.LineSegment(V(-960, -350, 0), V(-200, -350, 0)), False)
sketch6.addGeometry(Part.LineSegment(V(-200, -350, 0), V(-200, 350, 0)), False)
sketch6.addGeometry(Part.LineSegment(V(-200, 350, 0), V(-960, 350, 0)), False)
sketch6.addGeometry(Part.Circle(V(-930, -320, 0), V(0, 0, 1), 3), False)
sketch6.addGeometry(Part.Circle(V(-900, -320, 0), V(0, 0, 1), 3), False)
sketch6.addGeometry(Part.Circle(V(-930, -290, 0), V(0, 0, 1), 3), False)
sketch6.addGeometry(Part.Circle(V(-900, -290, 0), V(0, 0, 1), 3), False)
sketch6.addGeometry(Part.Circle(V(-215, -320, 0), V(0, 0, 1), 3), False)
sketch6.addGeometry(Part.Circle(V(-215, -290, 0), V(0, 0, 1), 3), False)
sketch6.addGeometry(Part.Circle(V(-930, 335, 0), V(0, 0, 1), 3), False)
sketch6.addGeometry(Part.Circle(V(-900, 335, 0), V(0, 0, 1), 3), False)
sketch6.addGeometry(Part.Circle(V(-215, 335, 0), V(0, 0, 1), 3), False)
sketch6.addGeometry(Part.LineSegment(V(200, 350, 0), V(200, -350, 0)), False)
sketch6.addGeometry(Part.LineSegment(V(200, -350, 0), V(960, -350, 0)), False)
sketch6.addGeometry(Part.LineSegment(V(960, -350, 0), V(960, 350, 0)), False)
sketch6.addGeometry(Part.LineSegment(V(960, 350, 0), V(200, 350, 0)), False)
sketch6.addGeometry(Part.Circle(V(215, -320, 0), V(0, 0, 1), 3), False)
sketch6.addGeometry(Part.Circle(V(215, -290, 0), V(0, 0, 1), 3), False)
sketch6.addGeometry(Part.Circle(V(900, -320, 0), V(0, 0, 1), 3), False)
sketch6.addGeometry(Part.Circle(V(930, -320, 0), V(0, 0, 1), 3), False)
sketch6.addGeometry(Part.Circle(V(900, -290, 0), V(0, 0, 1), 3), False)
sketch6.addGeometry(Part.Circle(V(930, -290, 0), V(0, 0, 1), 3), False)
sketch6.addGeometry(Part.Circle(V(215, 335, 0), V(0, 0, 1), 3), False)
sketch6.addGeometry(Part.Circle(V(900, 335, 0), V(0, 0, 1), 3), False)
sketch6.addGeometry(Part.Circle(V(930, 335, 0), V(0, 0, 1), 3), False)
sketch6.addConstraint(Sketcher.Constraint("Coincident", 0, 2, 1, 1))
sketch6.addConstraint(Sketcher.Constraint("Coincident", 1, 2, 2, 1))
sketch6.addConstraint(Sketcher.Constraint("Coincident", 2, 2, 3, 1))
sketch6.addConstraint(Sketcher.Constraint("Coincident", 3, 2, 0, 1))
sketch6.addConstraint(Sketcher.Constraint("Coincident", 13, 2, 14, 1))
sketch6.addConstraint(Sketcher.Constraint("Coincident", 14, 2, 15, 1))
sketch6.addConstraint(Sketcher.Constraint("Coincident", 15, 2, 16, 1))
sketch6.addConstraint(Sketcher.Constraint("Coincident", 16, 2, 13, 1))
sketch6.addConstraint(Sketcher.Constraint("Vertical", 0))
sketch6.addConstraint(Sketcher.Constraint("Horizontal", 1))
sketch6.addConstraint(Sketcher.Constraint("Vertical", 2))
sketch6.addConstraint(Sketcher.Constraint("Horizontal", 3))
sketch6.addConstraint(Sketcher.Constraint("Vertical", 13))
sketch6.addConstraint(Sketcher.Constraint("Horizontal", 14))
sketch6.addConstraint(Sketcher.Constraint("Vertical", 15))
sketch6.addConstraint(Sketcher.Constraint("Horizontal", 16))
sketch6.addConstraint(Sketcher.Constraint("Equal", 4, 5))
sketch6.addConstraint(Sketcher.Constraint("Equal", 5, 6))
sketch6.addConstraint(Sketcher.Constraint("Equal", 6, 7))
sketch6.addConstraint(Sketcher.Constraint("Equal", 7, 8))
sketch6.addConstraint(Sketcher.Constraint("Equal", 8, 9))
sketch6.addConstraint(Sketcher.Constraint("Equal", 9, 10))
sketch6.addConstraint(Sketcher.Constraint("Equal", 10, 11))
sketch6.addConstraint(Sketcher.Constraint("Equal", 11, 12))
sketch6.addConstraint(Sketcher.Constraint("Equal", 12, 17))
sketch6.addConstraint(Sketcher.Constraint("Equal", 17, 18))
sketch6.addConstraint(Sketcher.Constraint("Equal", 18, 19))
sketch6.addConstraint(Sketcher.Constraint("Equal", 19, 20))
sketch6.addConstraint(Sketcher.Constraint("Equal", 20, 21))
sketch6.addConstraint(Sketcher.Constraint("Equal", 21, 22))
sketch6.addConstraint(Sketcher.Constraint("Equal", 22, 23))
sketch6.addConstraint(Sketcher.Constraint("Equal", 23, 24))
sketch6.addConstraint(Sketcher.Constraint("Equal", 24, 25))
sketch6.addConstraint(Sketcher.Constraint("Symmetric", 2, 2, 13, 2, -1, 1))
sketch6.addConstraint(Sketcher.Constraint("Symmetric", 0, 2, 15, 2, -1, 1))
sketch6.addConstraint(Sketcher.Constraint("Symmetric", 8, 3, 17, 3, -2))
sketch6.addConstraint(Sketcher.Constraint("Symmetric", 9, 3, 18, 3, -2))
sketch6.addConstraint(Sketcher.Constraint("Symmetric", 5, 3, 19, 3, -2))
sketch6.addConstraint(Sketcher.Constraint("Symmetric", 4, 3, 20, 3, -2))
sketch6.addConstraint(Sketcher.Constraint("Symmetric", 7, 3, 21, 3, -2))
sketch6.addConstraint(Sketcher.Constraint("Symmetric", 6, 3, 22, 3, -2))
sketch6.addConstraint(Sketcher.Constraint("Symmetric", 12, 3, 23, 3, -2))
sketch6.addConstraint(Sketcher.Constraint("Symmetric", 11, 3, 24, 3, -2))
sketch6.addConstraint(Sketcher.Constraint("Symmetric", 10, 3, 25, 3, -2))
sketch6.addConstraint(Sketcher.Constraint("Horizontal", 4, 3, 5, 3))
sketch6.addConstraint(Sketcher.Constraint("Horizontal", 6, 3, 7, 3))
sketch6.addConstraint(Sketcher.Constraint("Horizontal", 5, 3, 8, 3))
sketch6.addConstraint(Sketcher.Constraint("Horizontal", 7, 3, 9, 3))
sketch6.addConstraint(Sketcher.Constraint("Horizontal", 10, 3, 11, 3))
sketch6.addConstraint(Sketcher.Constraint("Horizontal", 11, 3, 12, 3))
sketch6.addConstraint(Sketcher.Constraint("Horizontal", 1, 2, 13, 2))
sketch6.addConstraint(Sketcher.Constraint("Vertical", 4, 3, 6, 3))
sketch6.addConstraint(Sketcher.Constraint("Vertical", 5, 3, 7, 3))
sketch6.addConstraint(Sketcher.Constraint("Vertical", 8, 3, 9, 3))
sketch6.addConstraint(Sketcher.Constraint("Vertical", 6, 3, 10, 3))
sketch6.addConstraint(Sketcher.Constraint("Vertical", 7, 3, 11, 3))
sketch6.addConstraint(Sketcher.Constraint("Vertical", 9, 3, 12, 3))
sketch6.addConstraint(Sketcher.Constraint("Diameter", 4, Q("6 mm")))
sketch6.addConstraint(Sketcher.Constraint("DistanceX", 1, 1, 1, 2, Q("760 mm")))
sketch6.addConstraint(Sketcher.Constraint("DistanceY", 0, 2, 0, 1, Q("700 mm")))
sketch6.addConstraint(Sketcher.Constraint("DistanceX", 4, 3, -1, 1, Q("930 mm")))
sketch6.addConstraint(Sketcher.Constraint("DistanceY", 4, 3, -1, 1, Q("320 mm")))
sketch6.addConstraint(Sketcher.Constraint("DistanceX", 5, 3, -1, 1, Q("900 mm")))
sketch6.addConstraint(Sketcher.Constraint("DistanceY", 6, 3, -1, 1, Q("290 mm")))
sketch6.addConstraint(Sketcher.Constraint("DistanceX", 8, 3, -1, 1, Q("215 mm")))
sketch6.addConstraint(Sketcher.Constraint("DistanceY", -1, 1, 10, 3, Q("335 mm")))
sketch6.addConstraint(Sketcher.Constraint("DistanceX", 0, 2, -1, 1, Q("960 mm")))
pad6 = body6.newObject("PartDesign::Pad", "Pad005")
pad6.Profile = sketch6
pad6.Length = 20

doc.recompute()
